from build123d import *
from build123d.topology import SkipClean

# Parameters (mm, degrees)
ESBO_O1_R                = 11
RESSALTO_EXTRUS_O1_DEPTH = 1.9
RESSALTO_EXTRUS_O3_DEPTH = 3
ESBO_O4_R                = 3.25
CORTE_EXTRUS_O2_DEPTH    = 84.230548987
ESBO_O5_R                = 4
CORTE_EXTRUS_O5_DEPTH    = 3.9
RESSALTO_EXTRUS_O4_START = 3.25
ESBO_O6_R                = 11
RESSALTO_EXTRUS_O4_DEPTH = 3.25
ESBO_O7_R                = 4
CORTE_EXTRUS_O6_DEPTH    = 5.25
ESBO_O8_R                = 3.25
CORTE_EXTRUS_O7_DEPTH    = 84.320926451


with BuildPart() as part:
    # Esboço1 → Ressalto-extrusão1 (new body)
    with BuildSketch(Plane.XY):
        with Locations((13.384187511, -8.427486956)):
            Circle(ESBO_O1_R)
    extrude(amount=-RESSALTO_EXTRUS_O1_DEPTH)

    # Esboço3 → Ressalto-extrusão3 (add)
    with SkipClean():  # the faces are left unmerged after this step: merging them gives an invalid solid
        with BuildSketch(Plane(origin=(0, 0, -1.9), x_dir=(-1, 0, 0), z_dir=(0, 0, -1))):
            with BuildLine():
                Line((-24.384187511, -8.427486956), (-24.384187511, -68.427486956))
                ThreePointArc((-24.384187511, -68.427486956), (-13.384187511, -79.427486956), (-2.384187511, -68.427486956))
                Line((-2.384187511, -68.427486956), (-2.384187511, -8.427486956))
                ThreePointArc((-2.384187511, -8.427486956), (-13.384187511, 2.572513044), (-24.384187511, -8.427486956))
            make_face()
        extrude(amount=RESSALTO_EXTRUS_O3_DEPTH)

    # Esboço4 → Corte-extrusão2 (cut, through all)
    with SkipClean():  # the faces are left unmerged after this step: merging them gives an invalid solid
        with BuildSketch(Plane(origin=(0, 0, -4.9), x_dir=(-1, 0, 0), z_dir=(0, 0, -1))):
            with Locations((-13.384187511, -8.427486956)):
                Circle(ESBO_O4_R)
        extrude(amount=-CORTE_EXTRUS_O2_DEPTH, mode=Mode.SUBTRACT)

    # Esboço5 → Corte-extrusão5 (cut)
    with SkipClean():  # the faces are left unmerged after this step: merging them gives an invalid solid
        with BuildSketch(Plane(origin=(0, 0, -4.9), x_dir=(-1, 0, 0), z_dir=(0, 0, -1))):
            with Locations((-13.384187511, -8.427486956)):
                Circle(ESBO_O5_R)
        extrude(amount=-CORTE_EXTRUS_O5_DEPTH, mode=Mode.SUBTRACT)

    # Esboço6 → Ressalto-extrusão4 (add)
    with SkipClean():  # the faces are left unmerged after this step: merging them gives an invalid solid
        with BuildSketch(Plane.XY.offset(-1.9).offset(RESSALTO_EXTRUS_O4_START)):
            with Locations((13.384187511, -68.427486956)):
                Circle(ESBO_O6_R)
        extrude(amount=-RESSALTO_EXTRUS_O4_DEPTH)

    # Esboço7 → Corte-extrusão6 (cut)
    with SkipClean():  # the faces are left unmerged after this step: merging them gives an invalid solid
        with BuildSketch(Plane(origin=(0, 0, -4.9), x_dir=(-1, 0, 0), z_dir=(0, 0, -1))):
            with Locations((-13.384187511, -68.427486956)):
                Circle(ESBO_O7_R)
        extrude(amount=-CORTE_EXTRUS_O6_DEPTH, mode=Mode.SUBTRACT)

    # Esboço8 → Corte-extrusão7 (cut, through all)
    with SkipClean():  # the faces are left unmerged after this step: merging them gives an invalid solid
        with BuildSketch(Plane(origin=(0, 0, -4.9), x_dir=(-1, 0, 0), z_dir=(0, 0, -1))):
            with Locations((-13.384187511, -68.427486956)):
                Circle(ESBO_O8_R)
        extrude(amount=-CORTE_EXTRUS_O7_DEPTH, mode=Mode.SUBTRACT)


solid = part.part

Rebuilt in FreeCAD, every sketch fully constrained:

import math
import FreeCAD as App
import Part
import Sketcher
from FreeCAD import Vector
Q = App.Units.Quantity

doc = App.newDocument("Part")
body = doc.addObject("PartDesign::Body", "Body")

# Sketch on XY plane
sketch1 = doc.addObject("Sketcher::SketchObject", "Sketch")
body.addObject(sketch1)
sketch1.AttachmentSupport = (doc.XY_Plane, [""])
sketch1.MapMode = "FlatFace"
sketch1.addGeometry(Part.Circle(Vector(13.384188, -8.427487, 0), Vector(0, 0, 1), 11), False)
sketch1.addConstraint([
    Sketcher.Constraint("Diameter", 0, Q("22 mm")),
    Sketcher.Constraint("DistanceX", -1, 1, 0, 3, Q("13.384188 mm")),
    Sketcher.Constraint("DistanceY", 0, 3, -1, 1, Q("8.427487 mm")),
])
pad1 = doc.addObject("PartDesign::Pad", "Pad")
body.addObject(pad1)
pad1.Profile = sketch1
pad1.Length = 1.9
pad1.Reversed = True

# Sketch on XY plane
sketch2 = doc.addObject("Sketcher::SketchObject", "Sketch001")
body.addObject(sketch2)
sketch2.AttachmentSupport = (doc.XY_Plane, [""])
sketch2.MapMode = "FlatFace"
sketch2.AttachmentOffset = App.Placement(Vector(0, 0, -1.9), App.Rotation())
sketch2.addGeometry([
    Part.LineSegment(Vector(24.384188, -8.427487, 0), Vector(24.384188, -68.427487, 0)),
    Part.ArcOfCircle(Part.Circle(Vector(13.384188, -68.427487, 0), Vector(0, 0, 1), 11), math.radians(180), math.radians(360)),
    Part.LineSegment(Vector(2.384188, -68.427487, 0), Vector(2.384188, -8.427487, 0)),
    Part.ArcOfCircle(Part.Circle(Vector(13.384188, -8.427487, 0), Vector(0, 0, 1), 11), math.radians(0), math.radians(180)),
], False)
sketch2.addConstraint([
    Sketcher.Constraint("Tangent", 0, 2, 1, 2),
    Sketcher.Constraint("Tangent", 1, 1, 2, 1),
    Sketcher.Constraint("Tangent", 2, 2, 3, 2),
    Sketcher.Constraint("Tangent", 3, 1, 0, 1),
    Sketcher.Constraint("Vertical", 0),
    Sketcher.Constraint("Vertical", 2),
    Sketcher.Constraint("Radius", 1, Q("11 mm")),
    Sketcher.Constraint("DistanceY", 0, 2, 0, 1, Q("60 mm")),
    Sketcher.Constraint("DistanceX", -1, 1, 1, 3, Q("13.384188 mm")),
    Sketcher.Constraint("DistanceY", 1, 3, -1, 1, Q("68.427487 mm")),
])
pad2 = doc.addObject("PartDesign::Pad", "Pad001")
body.addObject(pad2)
pad2.Profile = sketch2
pad2.Length = 3
pad2.Reversed = True

# Sketch on XY plane
sketch3 = doc.addObject("Sketcher::SketchObject", "Sketch002")
body.addObject(sketch3)
sketch3.AttachmentSupport = (doc.XY_Plane, [""])
sketch3.MapMode = "FlatFace"
sketch3.AttachmentOffset = App.Placement(Vector(0, 0, -4.9), App.Rotation())
sketch3.addGeometry(Part.Circle(Vector(13.384188, -8.427487, 0), Vector(0, 0, 1), 3.25), False)
sketch3.addConstraint([
    Sketcher.Constraint("Diameter", 0, Q("6.5 mm")),
    Sketcher.Constraint("DistanceX", -1, 1, 0, 3, Q("13.384188 mm")),
    Sketcher.Constraint("DistanceY", 0, 3, -1, 1, Q("8.427487 mm")),
])
pocket1 = doc.addObject("PartDesign::Pocket", "Pocket")
body.addObject(pocket1)
pocket1.Profile = sketch3
pocket1.Type = "ThroughAll"
pocket1.Reversed = True

# Sketch on XY plane
sketch4 = doc.addObject("Sketcher::SketchObject", "Sketch003")
body.addObject(sketch4)
sketch4.AttachmentSupport = (doc.XY_Plane, [""])
sketch4.MapMode = "FlatFace"
sketch4.AttachmentOffset = App.Placement(Vector(0, 0, -4.9), App.Rotation())
sketch4.addGeometry(Part.Circle(Vector(13.384188, -8.427487, 0), Vector(0, 0, 1), 4), False)
sketch4.addConstraint([
    Sketcher.Constraint("Diameter", 0, Q("8 mm")),
    Sketcher.Constraint("DistanceX", -1, 1, 0, 3, Q("13.384188 mm")),
    Sketcher.Constraint("DistanceY", 0, 3, -1, 1, Q("8.427487 mm")),
])
pocket2 = doc.addObject("PartDesign::Pocket", "Pocket001")
body.addObject(pocket2)
pocket2.Profile = sketch4
pocket2.Length = 3.9
pocket2.Reversed = True

# Sketch on XY plane
sketch5 = doc.addObject("Sketcher::SketchObject", "Sketch004")
body.addObject(sketch5)
sketch5.AttachmentSupport = (doc.XY_Plane, [""])
sketch5.MapMode = "FlatFace"
sketch5.AttachmentOffset = App.Placement(Vector(0, 0, 1.35), App.Rotation())
sketch5.addGeometry(Part.Circle(Vector(13.384188, -68.427487, 0), Vector(0, 0, 1), 11), False)
sketch5.addConstraint([
    Sketcher.Constraint("Diameter", 0, Q("22 mm")),
    Sketcher.Constraint("DistanceX", -1, 1, 0, 3, Q("13.384188 mm")),
    Sketcher.Constraint("DistanceY", 0, 3, -1, 1, Q("68.427487 mm")),
])
pad3 = doc.addObject("PartDesign::Pad", "Pad002")
body.addObject(pad3)
pad3.Profile = sketch5
pad3.Length = 3.25
pad3.Reversed = True

# Sketch on XY plane
sketch6 = doc.addObject("Sketcher::SketchObject", "Sketch005")
body.addObject(sketch6)
sketch6.AttachmentSupport = (doc.XY_Plane, [""])
sketch6.MapMode = "FlatFace"
sketch6.AttachmentOffset = App.Placement(Vector(0, 0, -4.9), App.Rotation())
sketch6.addGeometry(Part.Circle(Vector(13.384188, -68.427487, 0), Vector(0, 0, 1), 4), False)
sketch6.addConstraint([
    Sketcher.Constraint("Diameter", 0, Q("8 mm")),
    Sketcher.Constraint("DistanceX", -1, 1, 0, 3, Q("13.384188 mm")),
    Sketcher.Constraint("DistanceY", 0, 3, -1, 1, Q("68.427487 mm")),
])
pocket3 = doc.addObject("PartDesign::Pocket", "Pocket002")
body.addObject(pocket3)
pocket3.Profile = sketch6
pocket3.Length = 5.25
pocket3.Reversed = True

# Sketch on XY plane
sketch7 = doc.addObject("Sketcher::SketchObject", "Sketch006")
body.addObject(sketch7)
sketch7.AttachmentSupport = (doc.XY_Plane, [""])
sketch7.MapMode = "FlatFace"
sketch7.AttachmentOffset = App.Placement(Vector(0, 0, -4.9), App.Rotation())
sketch7.addGeometry(Part.Circle(Vector(13.384188, -68.427487, 0), Vector(0, 0, 1), 3.25), False)
sketch7.addConstraint([
    Sketcher.Constraint("Diameter", 0, Q("6.5 mm")),
    Sketcher.Constraint("DistanceX", -1, 1, 0, 3, Q("13.384188 mm")),
    Sketcher.Constraint("DistanceY", 0, 3, -1, 1, Q("68.427487 mm")),
])
pocket4 = doc.addObject("PartDesign::Pocket", "Pocket003")
body.addObject(pocket4)
pocket4.Profile = sketch7
pocket4.Type = "ThroughAll"
pocket4.Reversed = True

doc.recompute()
